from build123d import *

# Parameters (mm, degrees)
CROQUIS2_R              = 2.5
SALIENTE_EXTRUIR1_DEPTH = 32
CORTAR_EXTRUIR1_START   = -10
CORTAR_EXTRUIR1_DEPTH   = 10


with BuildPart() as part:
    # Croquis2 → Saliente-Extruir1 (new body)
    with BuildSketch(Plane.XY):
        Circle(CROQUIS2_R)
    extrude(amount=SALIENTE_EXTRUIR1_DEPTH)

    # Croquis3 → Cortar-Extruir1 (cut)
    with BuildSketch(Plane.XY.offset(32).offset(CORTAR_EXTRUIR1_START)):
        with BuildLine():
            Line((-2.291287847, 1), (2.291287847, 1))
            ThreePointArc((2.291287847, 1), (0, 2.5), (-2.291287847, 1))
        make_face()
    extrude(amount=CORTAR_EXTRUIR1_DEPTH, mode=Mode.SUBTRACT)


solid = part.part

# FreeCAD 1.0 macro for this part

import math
import FreeCAD as App
import Part
import Sketcher

doc = App.newDocument("Part")
body = doc.addObject("PartDesign::Body", "Body")

sketch1 = doc.addObject("Sketcher::SketchObject", "Sketch")
body.addObject(sketch1)
sketch1.AttachmentSupport = (doc.XY_Plane, [""])
sketch1.MapMode = "FlatFace"
sketch1.addGeometry(Part.Circle(App.Vector(0, 0, 0), App.Vector(0, 0, 1), 2.5), False)
sketch1.addConstraint([
    Sketcher.Constraint("Coincident", 0, 3, -1, 1),
    Sketcher.Constraint("Diameter", 0, 5.0),
])
pad1 = doc.addObject("PartDesign::Pad", "Pad")
body.addObject(pad1)
pad1.Profile = sketch1
pad1.Length = 32

sketch2 = doc.addObject("Sketcher::SketchObject", "Sketch001")
body.addObject(sketch2)
sketch2.AttachmentSupport = (doc.XY_Plane, [""])
sketch2.MapMode = "FlatFace"
sketch2.AttachmentOffset = App.Placement(App.Vector(0, 0, 22), App.Rotation())
sketch2.addGeometry([
    Part.LineSegment(App.Vector(-2.3, 1, 0), App.Vector(2.3, 1, 0)),
    Part.ArcOfCircle(Part.Circle(App.Vector(0, 0, 0), App.Vector(0, 0, 1), 2.5), math.radians(24), math.radians(156)),
], False)
sketch2.addConstraint([
    Sketcher.Constraint("Coincident", 0, 1, 1, 2),
    Sketcher.Constraint("Coincident", 1, 1, 0, 2),
    Sketcher.Constraint("Horizontal", 0),
    Sketcher.Constraint("Coincident", 1, 3, -1, 1),
    Sketcher.Constraint("Radius", 1, 2.5),
    Sketcher.Constraint("DistanceY", -1, 1, 0, 1, 1.0),
])
pocket1 = doc.addObject("PartDesign::Pocket", "Pocket")
body.addObject(pocket1)
pocket1.Profile = sketch2
pocket1.Length = 10
pocket1.Reversed = True

doc.recompute()
